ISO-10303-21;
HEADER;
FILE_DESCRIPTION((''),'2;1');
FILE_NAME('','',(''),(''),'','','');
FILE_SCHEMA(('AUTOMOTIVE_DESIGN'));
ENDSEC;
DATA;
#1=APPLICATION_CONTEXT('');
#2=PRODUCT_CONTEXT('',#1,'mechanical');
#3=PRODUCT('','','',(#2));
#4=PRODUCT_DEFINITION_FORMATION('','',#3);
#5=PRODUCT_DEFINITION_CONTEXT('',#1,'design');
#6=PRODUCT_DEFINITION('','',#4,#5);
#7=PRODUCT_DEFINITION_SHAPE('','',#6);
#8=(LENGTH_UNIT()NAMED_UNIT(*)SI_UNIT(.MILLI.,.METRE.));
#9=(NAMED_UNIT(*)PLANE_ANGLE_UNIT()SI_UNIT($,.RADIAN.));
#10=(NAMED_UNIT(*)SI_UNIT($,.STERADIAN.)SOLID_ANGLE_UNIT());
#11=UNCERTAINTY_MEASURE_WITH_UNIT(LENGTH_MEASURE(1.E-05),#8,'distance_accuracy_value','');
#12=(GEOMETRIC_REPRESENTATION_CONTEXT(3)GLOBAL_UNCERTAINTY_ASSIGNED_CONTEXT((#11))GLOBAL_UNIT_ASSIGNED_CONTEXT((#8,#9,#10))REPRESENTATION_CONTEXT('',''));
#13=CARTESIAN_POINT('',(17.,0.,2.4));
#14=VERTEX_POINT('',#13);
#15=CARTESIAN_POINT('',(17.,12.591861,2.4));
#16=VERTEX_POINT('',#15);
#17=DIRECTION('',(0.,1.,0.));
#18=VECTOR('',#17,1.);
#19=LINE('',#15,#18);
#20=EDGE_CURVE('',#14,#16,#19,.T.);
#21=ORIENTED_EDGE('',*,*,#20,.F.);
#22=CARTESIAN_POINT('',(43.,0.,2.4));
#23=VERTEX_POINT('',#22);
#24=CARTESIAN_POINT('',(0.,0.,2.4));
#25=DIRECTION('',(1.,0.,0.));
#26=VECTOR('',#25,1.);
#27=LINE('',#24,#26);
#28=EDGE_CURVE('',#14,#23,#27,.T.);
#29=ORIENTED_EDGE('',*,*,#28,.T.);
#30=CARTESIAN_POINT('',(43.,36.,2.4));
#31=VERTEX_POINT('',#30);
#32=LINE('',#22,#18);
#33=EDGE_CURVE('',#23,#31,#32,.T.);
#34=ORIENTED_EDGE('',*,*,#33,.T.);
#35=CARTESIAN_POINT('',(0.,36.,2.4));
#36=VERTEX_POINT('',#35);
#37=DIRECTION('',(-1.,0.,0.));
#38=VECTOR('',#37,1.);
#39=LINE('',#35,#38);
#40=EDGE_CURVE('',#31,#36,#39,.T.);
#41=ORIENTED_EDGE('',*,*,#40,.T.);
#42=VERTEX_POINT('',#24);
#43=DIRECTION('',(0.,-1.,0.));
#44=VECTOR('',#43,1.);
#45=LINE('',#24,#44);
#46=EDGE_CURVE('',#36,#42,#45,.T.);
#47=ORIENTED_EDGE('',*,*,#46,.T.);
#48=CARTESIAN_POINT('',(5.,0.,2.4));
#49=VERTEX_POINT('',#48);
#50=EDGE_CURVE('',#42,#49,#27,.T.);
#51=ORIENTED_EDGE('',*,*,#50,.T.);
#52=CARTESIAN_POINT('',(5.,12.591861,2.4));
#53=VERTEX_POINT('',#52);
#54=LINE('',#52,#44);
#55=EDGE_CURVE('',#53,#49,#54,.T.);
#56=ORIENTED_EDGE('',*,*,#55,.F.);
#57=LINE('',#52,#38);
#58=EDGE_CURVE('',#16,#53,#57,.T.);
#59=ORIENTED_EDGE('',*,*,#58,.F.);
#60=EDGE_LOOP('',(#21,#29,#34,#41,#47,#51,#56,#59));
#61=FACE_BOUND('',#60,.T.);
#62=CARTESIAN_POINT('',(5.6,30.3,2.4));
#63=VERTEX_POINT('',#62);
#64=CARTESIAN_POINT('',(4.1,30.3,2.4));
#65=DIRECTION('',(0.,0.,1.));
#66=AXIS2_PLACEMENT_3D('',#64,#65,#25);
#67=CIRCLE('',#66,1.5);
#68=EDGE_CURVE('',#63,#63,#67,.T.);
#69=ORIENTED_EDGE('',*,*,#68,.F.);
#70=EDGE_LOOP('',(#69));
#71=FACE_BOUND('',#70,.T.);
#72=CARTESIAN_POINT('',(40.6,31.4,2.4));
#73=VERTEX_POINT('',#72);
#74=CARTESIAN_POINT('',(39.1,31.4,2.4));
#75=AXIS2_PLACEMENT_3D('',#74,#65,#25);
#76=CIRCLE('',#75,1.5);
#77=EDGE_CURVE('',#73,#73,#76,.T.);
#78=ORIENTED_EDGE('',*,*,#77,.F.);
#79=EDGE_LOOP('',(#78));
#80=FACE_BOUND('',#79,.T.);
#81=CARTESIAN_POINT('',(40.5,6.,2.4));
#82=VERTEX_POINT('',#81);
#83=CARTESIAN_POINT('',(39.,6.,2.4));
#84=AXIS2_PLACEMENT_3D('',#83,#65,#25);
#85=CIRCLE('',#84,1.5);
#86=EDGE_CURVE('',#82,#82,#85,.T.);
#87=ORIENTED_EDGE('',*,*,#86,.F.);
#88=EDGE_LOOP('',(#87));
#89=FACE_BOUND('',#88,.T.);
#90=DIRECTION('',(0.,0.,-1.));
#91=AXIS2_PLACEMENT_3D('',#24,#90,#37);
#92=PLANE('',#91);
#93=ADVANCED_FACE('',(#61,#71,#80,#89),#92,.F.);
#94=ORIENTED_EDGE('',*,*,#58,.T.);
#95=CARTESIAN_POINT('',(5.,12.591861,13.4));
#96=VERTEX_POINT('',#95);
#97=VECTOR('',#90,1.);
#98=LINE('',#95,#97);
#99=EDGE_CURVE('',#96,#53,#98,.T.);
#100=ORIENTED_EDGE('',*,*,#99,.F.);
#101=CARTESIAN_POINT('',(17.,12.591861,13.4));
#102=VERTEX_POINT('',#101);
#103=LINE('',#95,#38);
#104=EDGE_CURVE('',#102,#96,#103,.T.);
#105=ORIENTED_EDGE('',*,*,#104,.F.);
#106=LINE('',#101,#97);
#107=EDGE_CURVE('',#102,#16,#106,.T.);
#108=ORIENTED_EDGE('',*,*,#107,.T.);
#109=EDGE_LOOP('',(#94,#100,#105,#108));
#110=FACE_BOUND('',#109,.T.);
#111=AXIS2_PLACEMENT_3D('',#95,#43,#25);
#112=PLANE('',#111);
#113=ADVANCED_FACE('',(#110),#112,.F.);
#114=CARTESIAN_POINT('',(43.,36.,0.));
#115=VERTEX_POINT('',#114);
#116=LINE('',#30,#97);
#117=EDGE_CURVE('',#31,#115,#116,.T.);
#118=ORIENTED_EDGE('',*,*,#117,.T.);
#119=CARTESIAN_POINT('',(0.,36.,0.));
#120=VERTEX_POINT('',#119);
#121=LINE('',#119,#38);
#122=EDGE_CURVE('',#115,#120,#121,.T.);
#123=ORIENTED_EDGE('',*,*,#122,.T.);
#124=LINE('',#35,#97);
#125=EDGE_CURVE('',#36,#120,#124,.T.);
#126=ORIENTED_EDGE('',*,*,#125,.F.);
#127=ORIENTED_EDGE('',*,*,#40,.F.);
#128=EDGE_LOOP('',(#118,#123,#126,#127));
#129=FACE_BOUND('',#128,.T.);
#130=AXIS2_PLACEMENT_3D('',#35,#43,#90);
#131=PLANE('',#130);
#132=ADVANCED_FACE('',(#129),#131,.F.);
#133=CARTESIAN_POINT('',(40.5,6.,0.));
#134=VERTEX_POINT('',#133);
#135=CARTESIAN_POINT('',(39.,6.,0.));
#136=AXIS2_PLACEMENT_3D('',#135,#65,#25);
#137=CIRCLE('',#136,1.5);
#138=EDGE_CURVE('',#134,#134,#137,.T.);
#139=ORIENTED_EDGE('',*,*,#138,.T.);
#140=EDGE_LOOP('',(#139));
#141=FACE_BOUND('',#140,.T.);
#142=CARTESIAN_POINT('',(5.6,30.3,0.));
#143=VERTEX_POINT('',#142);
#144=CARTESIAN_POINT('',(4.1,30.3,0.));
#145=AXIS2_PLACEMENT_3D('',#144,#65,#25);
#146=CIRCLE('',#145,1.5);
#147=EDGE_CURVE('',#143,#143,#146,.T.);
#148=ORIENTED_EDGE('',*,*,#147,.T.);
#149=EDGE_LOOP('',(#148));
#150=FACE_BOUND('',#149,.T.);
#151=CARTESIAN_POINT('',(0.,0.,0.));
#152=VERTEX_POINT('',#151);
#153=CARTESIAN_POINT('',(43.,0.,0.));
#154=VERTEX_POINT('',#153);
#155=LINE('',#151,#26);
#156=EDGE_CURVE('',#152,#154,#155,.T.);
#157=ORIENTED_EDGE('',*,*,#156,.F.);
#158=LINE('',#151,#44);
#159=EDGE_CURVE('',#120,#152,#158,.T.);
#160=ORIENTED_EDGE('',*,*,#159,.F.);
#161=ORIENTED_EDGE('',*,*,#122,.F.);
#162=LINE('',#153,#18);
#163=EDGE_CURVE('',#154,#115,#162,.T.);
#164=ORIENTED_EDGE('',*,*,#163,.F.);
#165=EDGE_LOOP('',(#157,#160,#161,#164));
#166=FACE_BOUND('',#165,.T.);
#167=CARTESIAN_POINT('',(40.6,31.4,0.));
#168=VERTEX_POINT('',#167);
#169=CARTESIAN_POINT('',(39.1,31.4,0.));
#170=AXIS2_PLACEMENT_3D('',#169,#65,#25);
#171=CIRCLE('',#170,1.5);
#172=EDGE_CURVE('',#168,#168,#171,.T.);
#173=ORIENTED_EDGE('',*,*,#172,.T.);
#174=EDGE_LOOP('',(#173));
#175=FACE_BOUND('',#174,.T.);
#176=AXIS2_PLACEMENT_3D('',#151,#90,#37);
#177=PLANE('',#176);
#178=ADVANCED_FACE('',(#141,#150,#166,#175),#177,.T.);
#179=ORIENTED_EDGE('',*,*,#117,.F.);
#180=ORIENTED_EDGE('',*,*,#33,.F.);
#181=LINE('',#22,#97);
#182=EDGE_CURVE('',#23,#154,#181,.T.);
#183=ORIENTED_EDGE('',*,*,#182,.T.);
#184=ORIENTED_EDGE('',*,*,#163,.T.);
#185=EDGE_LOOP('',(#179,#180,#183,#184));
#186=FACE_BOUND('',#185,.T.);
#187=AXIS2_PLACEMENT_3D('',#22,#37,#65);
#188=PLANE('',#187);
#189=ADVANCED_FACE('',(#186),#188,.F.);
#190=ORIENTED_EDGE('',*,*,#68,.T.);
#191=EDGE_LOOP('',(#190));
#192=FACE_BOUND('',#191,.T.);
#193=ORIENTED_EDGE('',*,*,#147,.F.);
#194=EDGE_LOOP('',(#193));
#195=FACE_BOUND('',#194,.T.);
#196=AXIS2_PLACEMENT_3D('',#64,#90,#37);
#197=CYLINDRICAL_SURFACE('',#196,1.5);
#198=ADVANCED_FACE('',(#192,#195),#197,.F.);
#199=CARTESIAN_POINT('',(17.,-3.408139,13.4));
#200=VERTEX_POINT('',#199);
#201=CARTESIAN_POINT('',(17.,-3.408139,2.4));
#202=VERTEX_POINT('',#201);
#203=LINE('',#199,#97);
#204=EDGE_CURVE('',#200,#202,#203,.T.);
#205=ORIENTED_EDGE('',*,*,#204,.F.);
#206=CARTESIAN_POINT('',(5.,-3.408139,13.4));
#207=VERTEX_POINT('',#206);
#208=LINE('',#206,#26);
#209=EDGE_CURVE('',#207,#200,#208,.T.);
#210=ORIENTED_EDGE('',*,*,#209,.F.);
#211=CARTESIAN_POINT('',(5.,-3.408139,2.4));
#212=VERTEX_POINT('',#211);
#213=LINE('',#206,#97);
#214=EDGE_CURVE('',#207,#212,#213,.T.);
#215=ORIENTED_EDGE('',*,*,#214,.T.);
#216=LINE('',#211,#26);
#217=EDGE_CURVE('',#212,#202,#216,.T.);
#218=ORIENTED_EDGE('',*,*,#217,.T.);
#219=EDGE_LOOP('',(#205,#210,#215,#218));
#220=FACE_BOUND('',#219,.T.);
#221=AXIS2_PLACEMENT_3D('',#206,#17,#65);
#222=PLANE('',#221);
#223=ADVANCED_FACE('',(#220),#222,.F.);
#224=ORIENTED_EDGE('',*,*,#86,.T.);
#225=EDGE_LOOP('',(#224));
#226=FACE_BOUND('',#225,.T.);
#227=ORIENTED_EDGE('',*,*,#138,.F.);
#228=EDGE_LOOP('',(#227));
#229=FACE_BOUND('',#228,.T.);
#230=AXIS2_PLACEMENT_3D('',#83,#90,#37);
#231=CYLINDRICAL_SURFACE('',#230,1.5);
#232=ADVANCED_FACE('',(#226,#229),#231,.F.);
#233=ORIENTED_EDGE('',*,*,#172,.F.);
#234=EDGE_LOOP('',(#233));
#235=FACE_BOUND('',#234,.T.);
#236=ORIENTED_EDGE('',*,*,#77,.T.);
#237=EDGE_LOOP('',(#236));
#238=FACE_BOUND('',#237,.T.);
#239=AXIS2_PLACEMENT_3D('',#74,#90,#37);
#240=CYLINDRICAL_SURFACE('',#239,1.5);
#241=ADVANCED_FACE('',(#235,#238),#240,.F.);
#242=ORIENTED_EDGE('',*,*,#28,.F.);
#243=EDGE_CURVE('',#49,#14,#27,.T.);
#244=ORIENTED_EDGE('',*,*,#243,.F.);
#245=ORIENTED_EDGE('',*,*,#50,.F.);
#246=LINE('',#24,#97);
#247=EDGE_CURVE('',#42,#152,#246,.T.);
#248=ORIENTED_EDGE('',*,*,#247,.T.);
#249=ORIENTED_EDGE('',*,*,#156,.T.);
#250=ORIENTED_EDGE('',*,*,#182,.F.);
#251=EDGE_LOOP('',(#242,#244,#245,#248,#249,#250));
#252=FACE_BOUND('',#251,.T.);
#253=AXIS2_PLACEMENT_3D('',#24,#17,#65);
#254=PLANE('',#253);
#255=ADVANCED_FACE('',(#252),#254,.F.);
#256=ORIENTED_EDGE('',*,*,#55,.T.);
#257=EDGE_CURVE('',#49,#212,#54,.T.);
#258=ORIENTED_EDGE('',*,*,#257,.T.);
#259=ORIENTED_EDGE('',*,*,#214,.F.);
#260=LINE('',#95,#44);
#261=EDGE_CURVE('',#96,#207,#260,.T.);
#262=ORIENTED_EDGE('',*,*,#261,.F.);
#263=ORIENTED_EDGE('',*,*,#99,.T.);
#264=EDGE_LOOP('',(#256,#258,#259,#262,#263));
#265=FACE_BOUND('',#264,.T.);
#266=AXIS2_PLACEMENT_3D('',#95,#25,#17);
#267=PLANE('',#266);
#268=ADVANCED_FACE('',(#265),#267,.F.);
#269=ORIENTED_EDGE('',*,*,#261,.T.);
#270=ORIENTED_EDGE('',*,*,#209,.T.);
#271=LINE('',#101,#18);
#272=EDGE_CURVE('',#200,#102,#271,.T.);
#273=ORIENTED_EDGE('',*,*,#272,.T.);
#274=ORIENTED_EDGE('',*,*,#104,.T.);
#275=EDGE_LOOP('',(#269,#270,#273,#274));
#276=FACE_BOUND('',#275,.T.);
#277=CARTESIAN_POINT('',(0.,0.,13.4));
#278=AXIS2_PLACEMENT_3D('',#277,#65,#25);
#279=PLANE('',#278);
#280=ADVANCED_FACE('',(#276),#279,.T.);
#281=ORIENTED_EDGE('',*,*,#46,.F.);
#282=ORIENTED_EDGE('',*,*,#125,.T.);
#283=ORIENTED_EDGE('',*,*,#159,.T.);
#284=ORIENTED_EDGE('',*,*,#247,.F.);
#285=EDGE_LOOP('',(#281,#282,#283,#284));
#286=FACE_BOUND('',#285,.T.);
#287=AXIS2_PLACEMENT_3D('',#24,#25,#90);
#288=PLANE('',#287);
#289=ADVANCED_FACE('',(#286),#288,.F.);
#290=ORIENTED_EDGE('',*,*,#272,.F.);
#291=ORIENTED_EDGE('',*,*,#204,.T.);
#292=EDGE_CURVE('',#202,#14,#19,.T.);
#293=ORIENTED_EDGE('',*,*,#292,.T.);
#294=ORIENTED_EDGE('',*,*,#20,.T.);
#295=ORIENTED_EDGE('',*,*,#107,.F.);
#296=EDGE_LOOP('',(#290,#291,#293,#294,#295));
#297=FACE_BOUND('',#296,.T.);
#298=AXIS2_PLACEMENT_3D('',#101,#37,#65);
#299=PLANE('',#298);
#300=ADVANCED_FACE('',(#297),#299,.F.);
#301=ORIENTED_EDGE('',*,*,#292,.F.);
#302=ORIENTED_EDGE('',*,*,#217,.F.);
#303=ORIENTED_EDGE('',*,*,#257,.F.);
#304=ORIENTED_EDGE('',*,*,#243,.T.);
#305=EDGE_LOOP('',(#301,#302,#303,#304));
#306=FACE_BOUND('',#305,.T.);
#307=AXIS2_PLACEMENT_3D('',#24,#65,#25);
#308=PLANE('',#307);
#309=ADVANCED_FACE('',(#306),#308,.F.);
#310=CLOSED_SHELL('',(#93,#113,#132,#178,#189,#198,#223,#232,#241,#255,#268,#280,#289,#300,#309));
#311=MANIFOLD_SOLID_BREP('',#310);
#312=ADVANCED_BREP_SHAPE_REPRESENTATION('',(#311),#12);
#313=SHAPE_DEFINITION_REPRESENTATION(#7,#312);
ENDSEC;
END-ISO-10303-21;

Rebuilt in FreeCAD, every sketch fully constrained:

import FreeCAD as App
import Part
import Sketcher

V = App.Vector

doc = App.newDocument("Part")
params = doc.addObject("Spreadsheet::Sheet", "Params")
for row, (alias, value) in enumerate([
    ("sketch1_diameter", "3 mm"),
    ("sketch1_width", "43 mm"),
    ("sketch1_height", "36 mm"),
    ("pad1_length", "2.4 mm"),
    ("sketch2_width", "12 mm"),
    ("sketch2_height", "16 mm"),
    ("pad2_length", "11 mm"),
], start=1):
    params.set(f"A{row}", alias)
    params.set(f"B{row}", "=" + value)
    params.setAlias(f"B{row}", alias)

body = doc.addObject("PartDesign::Body", "Body")

sketch1 = doc.addObject("Sketcher::SketchObject", "Sketch")
body.addObject(sketch1)
sketch1.AttachmentSupport = (doc.XY_Plane, [""])
sketch1.MapMode = "FlatFace"
sketch1.addGeometry([
    Part.LineSegment(V(0, 36, 0), V(0, 0, 0)),
    Part.LineSegment(V(0, 0, 0), V(43, 0, 0)),
    Part.LineSegment(V(43, 0, 0), V(43, 36, 0)),
    Part.LineSegment(V(43, 36, 0), V(0, 36, 0)),
    Part.Circle(V(39, 6, 0), V(0, 0, 1), 1.5),
    Part.Circle(V(4.1, 30.3, 0), V(0, 0, 1), 1.5),
    Part.Circle(V(39.1, 31.4, 0), V(0, 0, 1), 1.5),
], False)
sketch1.addConstraint([
    Sketcher.Constraint("Coincident", 0, 2, 1, 1),
    Sketcher.Constraint("Coincident", 1, 2, 2, 1),
    Sketcher.Constraint("Coincident", 2, 2, 3, 1),
    Sketcher.Constraint("Coincident", 3, 2, 0, 1),
    Sketcher.Constraint("Vertical", 0),
    Sketcher.Constraint("Horizontal", 1),
    Sketcher.Constraint("Vertical", 2),
    Sketcher.Constraint("Horizontal", 3),
    Sketcher.Constraint("Coincident", 0, 2, -1, 1),
    Sketcher.Constraint("Equal", 4, 5),
    Sketcher.Constraint("Equal", 5, 6),
    Sketcher.Constraint("Diameter", 4, 3.0),
    Sketcher.Constraint("DistanceX", 1, 1, 1, 2, 43.0),
    Sketcher.Constraint("DistanceY", 0, 2, 0, 1, 36.0),
    Sketcher.Constraint("DistanceX", -1, 1, 4, 3, 39.0),
    Sketcher.Constraint("DistanceY", -1, 1, 4, 3, 6.0),
    Sketcher.Constraint("DistanceX", 5, 3, 6, 3, 35.0),
    Sketcher.Constraint("DistanceX", -1, 1, 5, 3, 4.1),
    Sketcher.Constraint("DistanceY", -1, 1, 5, 3, 30.3),
    Sketcher.Constraint("DistanceY", -1, 1, 6, 3, 31.4),
])
sketch1.setExpression("Constraints[11]", "Params.sketch1_diameter")
sketch1.setExpression("Constraints[12]", "Params.sketch1_width")
sketch1.setExpression("Constraints[13]", "Params.sketch1_height")
pad1 = doc.addObject("PartDesign::Pad", "Pad")
body.addObject(pad1)
pad1.Profile = sketch1
pad1.setExpression("Length", "Params.pad1_length")

sketch2 = doc.addObject("Sketcher::SketchObject", "Sketch001")
body.addObject(sketch2)
sketch2.AttachmentSupport = (doc.XY_Plane, [""])
sketch2.MapMode = "FlatFace"
sketch2.AttachmentOffset = App.Placement(V(0, 0, 2.4), App.Rotation())
sketch2.addGeometry([
    Part.LineSegment(V(5, 13, 0), V(5, -3, 0)),
    Part.LineSegment(V(5, -3, 0), V(17, -3, 0)),
    Part.LineSegment(V(17, -3, 0), V(17, 13, 0)),
    Part.LineSegment(V(17, 13, 0), V(5, 13, 0)),
], False)
sketch2.addConstraint([
    Sketcher.Constraint("Coincident", 0, 2, 1, 1),
    Sketcher.Constraint("Coincident", 1, 2, 2, 1),
    Sketcher.Constraint("Coincident", 2, 2, 3, 1),
    Sketcher.Constraint("Coincident", 3, 2, 0, 1),
    Sketcher.Constraint("Vertical", 0),
    Sketcher.Constraint("Horizontal", 1),
    Sketcher.Constraint("Vertical", 2),
    Sketcher.Constraint("Horizontal", 3),
    Sketcher.Constraint("DistanceX", 1, 1, 1, 2, 12.0),
    Sketcher.Constraint("DistanceY", 0, 2, 0, 1, 16.0),
    Sketcher.Constraint("DistanceX", -1, 1, 0, 2, 5.0),
    Sketcher.Constraint("DistanceY", 0, 2, -1, 1, 3.408139),
])
sketch2.setExpression("Constraints[8]", "Params.sketch2_width")
sketch2.setExpression("Constraints[9]", "Params.sketch2_height")
pad2 = doc.addObject("PartDesign::Pad", "Pad001")
body.addObject(pad2)
pad2.Profile = sketch2
pad2.setExpression("Length", "Params.pad2_length")

doc.recompute()
